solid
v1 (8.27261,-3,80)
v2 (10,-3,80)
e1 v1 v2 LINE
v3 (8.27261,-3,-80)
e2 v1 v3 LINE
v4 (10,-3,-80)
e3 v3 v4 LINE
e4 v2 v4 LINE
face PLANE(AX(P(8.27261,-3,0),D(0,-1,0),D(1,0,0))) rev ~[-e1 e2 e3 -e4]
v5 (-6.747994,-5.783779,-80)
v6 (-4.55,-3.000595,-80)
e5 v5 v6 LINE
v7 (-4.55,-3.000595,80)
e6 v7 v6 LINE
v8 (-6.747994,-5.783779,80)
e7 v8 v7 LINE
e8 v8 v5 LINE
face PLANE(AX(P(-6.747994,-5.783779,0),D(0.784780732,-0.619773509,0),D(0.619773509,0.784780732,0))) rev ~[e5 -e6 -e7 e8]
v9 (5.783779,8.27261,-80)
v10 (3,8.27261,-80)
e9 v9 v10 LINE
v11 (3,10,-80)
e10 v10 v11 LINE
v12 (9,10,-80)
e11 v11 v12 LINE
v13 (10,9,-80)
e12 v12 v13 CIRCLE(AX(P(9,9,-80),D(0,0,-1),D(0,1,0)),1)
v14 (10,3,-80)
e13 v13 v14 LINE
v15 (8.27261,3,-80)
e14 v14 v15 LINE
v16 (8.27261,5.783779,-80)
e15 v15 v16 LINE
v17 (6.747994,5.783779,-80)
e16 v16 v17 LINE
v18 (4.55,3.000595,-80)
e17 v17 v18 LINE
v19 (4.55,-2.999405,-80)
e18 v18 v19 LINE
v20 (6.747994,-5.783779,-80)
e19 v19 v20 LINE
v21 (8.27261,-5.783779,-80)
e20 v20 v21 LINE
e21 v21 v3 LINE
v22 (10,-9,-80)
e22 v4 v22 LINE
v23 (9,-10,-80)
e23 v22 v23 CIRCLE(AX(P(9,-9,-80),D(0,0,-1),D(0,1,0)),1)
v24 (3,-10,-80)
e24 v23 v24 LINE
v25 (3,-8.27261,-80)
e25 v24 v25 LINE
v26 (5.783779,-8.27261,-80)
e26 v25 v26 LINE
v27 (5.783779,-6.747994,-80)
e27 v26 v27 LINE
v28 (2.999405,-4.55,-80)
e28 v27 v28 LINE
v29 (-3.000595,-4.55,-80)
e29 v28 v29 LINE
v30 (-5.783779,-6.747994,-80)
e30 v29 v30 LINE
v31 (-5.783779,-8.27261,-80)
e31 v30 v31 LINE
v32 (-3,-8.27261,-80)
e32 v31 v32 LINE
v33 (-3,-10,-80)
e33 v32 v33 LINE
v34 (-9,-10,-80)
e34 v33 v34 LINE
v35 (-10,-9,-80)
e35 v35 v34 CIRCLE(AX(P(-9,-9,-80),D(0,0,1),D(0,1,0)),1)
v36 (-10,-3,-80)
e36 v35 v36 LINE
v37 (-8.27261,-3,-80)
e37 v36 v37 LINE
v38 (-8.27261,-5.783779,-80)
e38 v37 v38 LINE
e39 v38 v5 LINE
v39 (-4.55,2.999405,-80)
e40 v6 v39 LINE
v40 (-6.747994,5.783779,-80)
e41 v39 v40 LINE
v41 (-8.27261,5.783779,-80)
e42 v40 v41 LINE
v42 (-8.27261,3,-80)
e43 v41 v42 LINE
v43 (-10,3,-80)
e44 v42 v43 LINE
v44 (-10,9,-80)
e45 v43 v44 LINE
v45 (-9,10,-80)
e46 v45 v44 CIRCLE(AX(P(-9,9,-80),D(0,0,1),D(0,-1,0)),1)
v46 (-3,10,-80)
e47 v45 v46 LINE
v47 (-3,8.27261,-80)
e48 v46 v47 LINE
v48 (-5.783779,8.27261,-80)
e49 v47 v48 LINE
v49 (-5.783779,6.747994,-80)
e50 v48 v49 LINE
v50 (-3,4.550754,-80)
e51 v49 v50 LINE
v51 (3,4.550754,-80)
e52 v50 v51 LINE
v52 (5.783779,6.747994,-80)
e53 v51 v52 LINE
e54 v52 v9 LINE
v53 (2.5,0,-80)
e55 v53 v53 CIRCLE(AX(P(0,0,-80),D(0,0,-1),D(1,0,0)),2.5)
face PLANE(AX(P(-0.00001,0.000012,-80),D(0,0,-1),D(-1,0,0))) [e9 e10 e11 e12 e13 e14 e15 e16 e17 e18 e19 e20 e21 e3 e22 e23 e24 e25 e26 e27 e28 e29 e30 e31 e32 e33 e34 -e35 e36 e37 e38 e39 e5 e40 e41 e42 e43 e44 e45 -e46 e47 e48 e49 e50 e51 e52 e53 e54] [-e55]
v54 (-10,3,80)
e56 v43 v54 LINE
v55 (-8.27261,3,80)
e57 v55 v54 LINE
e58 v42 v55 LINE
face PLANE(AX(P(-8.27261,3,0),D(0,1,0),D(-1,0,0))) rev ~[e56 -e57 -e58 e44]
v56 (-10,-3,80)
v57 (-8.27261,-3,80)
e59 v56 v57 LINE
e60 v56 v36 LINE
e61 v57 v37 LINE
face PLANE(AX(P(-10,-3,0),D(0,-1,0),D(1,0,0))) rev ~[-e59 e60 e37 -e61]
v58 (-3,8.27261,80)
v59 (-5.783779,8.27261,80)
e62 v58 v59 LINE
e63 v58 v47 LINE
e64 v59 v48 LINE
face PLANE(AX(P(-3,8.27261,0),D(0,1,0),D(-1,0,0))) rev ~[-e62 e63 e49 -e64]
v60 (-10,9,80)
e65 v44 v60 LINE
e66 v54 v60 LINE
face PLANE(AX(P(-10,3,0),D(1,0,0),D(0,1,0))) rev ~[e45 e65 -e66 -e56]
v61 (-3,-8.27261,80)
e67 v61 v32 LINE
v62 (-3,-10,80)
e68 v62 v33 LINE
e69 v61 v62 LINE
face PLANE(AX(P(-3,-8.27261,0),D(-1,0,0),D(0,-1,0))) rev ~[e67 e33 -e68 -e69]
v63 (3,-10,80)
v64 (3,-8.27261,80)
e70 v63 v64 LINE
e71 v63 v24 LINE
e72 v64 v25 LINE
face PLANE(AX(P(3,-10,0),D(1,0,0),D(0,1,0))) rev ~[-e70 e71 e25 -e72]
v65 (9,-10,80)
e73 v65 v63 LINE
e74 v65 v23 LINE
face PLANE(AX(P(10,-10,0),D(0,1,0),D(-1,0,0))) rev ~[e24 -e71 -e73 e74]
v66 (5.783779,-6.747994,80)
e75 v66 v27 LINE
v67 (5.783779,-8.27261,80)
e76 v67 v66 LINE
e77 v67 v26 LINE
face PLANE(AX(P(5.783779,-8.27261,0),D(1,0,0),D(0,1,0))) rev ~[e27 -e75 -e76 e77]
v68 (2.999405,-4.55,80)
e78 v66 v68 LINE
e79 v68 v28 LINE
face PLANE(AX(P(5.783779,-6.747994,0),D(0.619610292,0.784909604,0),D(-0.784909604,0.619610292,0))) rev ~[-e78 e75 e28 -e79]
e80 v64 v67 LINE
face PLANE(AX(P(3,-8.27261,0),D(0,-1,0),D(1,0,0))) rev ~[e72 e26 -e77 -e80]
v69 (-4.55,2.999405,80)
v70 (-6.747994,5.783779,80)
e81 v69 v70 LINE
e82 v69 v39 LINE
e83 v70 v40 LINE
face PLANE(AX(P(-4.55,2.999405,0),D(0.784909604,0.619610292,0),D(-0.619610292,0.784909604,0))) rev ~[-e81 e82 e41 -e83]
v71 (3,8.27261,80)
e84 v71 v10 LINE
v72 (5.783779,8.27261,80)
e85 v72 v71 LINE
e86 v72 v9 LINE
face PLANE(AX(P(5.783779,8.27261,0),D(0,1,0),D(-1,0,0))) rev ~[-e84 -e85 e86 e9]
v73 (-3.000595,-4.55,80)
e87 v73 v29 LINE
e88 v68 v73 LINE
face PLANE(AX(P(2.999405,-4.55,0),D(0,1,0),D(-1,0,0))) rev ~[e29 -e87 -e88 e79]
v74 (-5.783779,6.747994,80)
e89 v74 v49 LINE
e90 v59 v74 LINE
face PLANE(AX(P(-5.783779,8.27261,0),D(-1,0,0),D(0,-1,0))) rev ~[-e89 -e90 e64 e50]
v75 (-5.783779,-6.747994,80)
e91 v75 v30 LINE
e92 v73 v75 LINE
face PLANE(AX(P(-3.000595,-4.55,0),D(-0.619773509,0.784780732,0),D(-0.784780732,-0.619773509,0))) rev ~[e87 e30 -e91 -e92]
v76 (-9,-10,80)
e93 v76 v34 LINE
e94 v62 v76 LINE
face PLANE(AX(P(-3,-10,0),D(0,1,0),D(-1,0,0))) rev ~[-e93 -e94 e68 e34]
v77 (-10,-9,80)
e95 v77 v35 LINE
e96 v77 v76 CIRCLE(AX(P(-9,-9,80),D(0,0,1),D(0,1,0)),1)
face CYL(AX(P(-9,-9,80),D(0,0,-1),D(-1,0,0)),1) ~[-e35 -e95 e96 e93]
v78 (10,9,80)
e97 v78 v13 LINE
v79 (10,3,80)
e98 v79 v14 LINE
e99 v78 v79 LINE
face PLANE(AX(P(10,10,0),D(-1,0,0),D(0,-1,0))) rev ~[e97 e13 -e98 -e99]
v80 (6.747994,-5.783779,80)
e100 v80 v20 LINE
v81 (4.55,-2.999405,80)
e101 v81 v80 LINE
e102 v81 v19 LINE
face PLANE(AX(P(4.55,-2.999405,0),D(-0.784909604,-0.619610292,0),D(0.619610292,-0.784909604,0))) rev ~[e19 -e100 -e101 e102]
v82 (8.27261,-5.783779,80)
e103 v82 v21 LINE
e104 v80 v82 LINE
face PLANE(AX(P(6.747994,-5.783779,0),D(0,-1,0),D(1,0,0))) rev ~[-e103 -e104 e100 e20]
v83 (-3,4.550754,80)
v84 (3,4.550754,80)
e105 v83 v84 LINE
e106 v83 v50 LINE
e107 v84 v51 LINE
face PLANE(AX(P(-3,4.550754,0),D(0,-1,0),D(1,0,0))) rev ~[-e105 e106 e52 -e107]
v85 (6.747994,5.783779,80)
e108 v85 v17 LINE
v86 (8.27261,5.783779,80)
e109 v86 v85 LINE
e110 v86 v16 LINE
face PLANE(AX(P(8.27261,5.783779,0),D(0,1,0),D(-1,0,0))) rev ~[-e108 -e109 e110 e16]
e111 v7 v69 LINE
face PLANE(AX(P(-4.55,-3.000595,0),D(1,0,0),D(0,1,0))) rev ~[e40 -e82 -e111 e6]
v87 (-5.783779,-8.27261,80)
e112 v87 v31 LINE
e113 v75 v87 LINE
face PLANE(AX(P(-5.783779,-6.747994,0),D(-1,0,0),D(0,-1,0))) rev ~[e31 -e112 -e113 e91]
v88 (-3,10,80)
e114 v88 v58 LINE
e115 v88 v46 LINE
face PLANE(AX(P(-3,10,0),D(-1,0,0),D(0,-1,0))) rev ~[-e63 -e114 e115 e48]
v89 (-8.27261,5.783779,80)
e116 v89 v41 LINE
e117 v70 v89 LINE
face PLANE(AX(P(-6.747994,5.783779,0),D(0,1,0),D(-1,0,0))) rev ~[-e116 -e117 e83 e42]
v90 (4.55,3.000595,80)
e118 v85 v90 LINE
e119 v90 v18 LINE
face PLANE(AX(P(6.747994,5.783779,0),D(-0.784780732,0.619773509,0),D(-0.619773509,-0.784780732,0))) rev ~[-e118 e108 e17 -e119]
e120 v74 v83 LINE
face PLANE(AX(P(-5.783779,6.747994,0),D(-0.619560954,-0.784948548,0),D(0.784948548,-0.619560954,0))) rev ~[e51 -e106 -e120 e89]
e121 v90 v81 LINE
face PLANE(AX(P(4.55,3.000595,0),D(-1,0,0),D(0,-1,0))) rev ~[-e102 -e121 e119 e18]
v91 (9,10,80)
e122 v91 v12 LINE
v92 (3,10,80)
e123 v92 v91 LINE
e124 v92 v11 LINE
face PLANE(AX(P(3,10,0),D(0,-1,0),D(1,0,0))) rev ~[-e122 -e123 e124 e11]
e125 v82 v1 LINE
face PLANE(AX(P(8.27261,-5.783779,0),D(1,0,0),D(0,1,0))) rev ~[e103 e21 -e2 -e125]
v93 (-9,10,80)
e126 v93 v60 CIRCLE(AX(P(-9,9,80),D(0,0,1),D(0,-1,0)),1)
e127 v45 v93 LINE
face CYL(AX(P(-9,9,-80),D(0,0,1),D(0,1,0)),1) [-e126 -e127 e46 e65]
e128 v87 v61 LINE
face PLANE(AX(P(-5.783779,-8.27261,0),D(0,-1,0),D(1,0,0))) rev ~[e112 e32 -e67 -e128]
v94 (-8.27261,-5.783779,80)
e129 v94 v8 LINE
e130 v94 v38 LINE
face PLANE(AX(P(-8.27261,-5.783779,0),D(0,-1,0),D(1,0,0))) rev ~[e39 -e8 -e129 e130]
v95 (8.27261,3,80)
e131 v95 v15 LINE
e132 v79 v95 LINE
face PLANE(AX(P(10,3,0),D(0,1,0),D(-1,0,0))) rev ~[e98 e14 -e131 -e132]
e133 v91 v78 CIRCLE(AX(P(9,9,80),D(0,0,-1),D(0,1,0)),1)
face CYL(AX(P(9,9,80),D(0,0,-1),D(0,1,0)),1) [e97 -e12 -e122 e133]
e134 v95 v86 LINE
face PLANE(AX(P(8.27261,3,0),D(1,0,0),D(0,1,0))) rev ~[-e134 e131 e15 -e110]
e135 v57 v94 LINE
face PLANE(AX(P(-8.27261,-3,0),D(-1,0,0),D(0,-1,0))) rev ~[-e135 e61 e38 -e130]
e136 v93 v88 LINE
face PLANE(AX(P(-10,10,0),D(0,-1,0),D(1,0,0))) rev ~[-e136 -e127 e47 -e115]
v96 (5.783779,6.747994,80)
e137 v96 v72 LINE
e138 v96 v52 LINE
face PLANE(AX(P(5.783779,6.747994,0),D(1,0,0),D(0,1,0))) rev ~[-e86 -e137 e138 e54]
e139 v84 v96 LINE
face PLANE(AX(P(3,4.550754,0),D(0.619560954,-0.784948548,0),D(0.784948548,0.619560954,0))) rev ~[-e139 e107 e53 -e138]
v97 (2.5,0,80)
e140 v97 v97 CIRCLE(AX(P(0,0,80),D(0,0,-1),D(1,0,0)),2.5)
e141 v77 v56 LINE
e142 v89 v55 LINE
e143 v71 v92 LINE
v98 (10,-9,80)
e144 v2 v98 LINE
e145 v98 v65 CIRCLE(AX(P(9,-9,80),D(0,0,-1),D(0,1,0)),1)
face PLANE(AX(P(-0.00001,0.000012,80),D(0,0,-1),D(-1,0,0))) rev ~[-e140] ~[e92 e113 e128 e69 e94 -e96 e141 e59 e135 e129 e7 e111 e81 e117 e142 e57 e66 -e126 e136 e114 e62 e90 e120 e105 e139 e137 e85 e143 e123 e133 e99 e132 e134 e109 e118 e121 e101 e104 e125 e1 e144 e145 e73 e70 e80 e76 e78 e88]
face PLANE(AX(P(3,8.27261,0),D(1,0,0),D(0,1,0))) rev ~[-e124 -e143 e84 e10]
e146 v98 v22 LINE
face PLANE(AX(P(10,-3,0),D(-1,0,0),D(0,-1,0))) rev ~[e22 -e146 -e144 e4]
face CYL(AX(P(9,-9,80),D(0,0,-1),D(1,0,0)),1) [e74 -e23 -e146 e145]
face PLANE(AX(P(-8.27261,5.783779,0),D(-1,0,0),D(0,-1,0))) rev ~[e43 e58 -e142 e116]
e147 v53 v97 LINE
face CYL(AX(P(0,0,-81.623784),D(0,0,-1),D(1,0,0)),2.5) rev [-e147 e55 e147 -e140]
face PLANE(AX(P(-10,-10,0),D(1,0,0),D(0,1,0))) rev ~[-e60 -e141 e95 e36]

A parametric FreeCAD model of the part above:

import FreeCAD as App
import Part
import Sketcher

V = App.Vector
Q = App.Units.Quantity


def edges_at(feature, points):
    """Names of the edges that pass closest to the given points."""
    edges = feature.Shape.Edges
    near = lambda p: min(range(len(edges)), key=lambda i: edges[i].distToShape(Part.Vertex(*p))[0])
    return sorted({f"Edge{near(p) + 1}" for p in points})


def add_polygon(sketch, points):
    """Adds a closed chain of lines whose ends are joined by coincident constraints."""
    first, n = sketch.GeometryCount, len(points)
    for a, b in zip(points, points[1:] + points[:1]):
        sketch.addGeometry(Part.LineSegment(App.Vector(*a, 0), App.Vector(*b, 0)), False)
    for i in range(n):
        sketch.addConstraint(Sketcher.Constraint("Coincident", first + i, 2, first + (i + 1) % n, 1))

doc = App.newDocument("Part")
body = doc.addObject("PartDesign::Body", "Body")

# Sketch on XY plane
sketch1 = doc.addObject("Sketcher::SketchObject", "Sketch")
body.addObject(sketch1)
sketch1.AttachmentSupport = (doc.XY_Plane, [""])
sketch1.MapMode = "FlatFace"
add_polygon(sketch1, [(-3, 10), (-10, 10), (-10, 3), (-8.27261, 3), (-8.27261, 5.783779), (-6.747994, 5.783779), (-4.55, 2.999405), (-4.55, -3.000595), (-6.747994, -5.783779), (-8.27261, -5.783779), (-8.27261, -3), (-10, -3), (-10, -10), (-3, -10), (-3, -8.27261), (-5.783779, -8.27261), (-5.783779, -6.747994), (-3.000595, -4.55), (2.999405, -4.55), (5.783779, -6.747994), (5.783779, -8.27261), (3, -8.27261), (3, -10), (10, -10), (10, -3), (8.27261, -3), (8.27261, -5.783779), (6.747994, -5.783779), (4.55, -2.999405), (4.55, 3.000595), (6.747994, 5.783779), (8.27261, 5.783779), (8.27261, 3), (10, 3), (10, 10), (3, 10), (3, 8.27261), (5.783779, 8.27261), (5.783779, 6.747994), (3, 4.550754), (-3, 4.550754), (-5.783779, 6.747994), (-5.783779, 8.27261), (-3, 8.27261)])  # lines 0-43
sketch1.addConstraint([
    Sketcher.Constraint("Horizontal", 0),
    Sketcher.Constraint("Vertical", 1),
    Sketcher.Constraint("Horizontal", 2),
    Sketcher.Constraint("Vertical", 3),
    Sketcher.Constraint("Horizontal", 4),
    Sketcher.Constraint("Vertical", 6),
    Sketcher.Constraint("Horizontal", 8),
    Sketcher.Constraint("Vertical", 9),
    Sketcher.Constraint("Horizontal", 10),
    Sketcher.Constraint("Vertical", 11),
    Sketcher.Constraint("Horizontal", 12),
    Sketcher.Constraint("Vertical", 13),
    Sketcher.Constraint("Horizontal", 14),
    Sketcher.Constraint("Vertical", 15),
    Sketcher.Constraint("Horizontal", 17),
    Sketcher.Constraint("Vertical", 19),
    Sketcher.Constraint("Horizontal", 20),
    Sketcher.Constraint("Vertical", 21),
    Sketcher.Constraint("Horizontal", 22),
    Sketcher.Constraint("Vertical", 23),
    Sketcher.Constraint("Horizontal", 24),
    Sketcher.Constraint("Vertical", 25),
    Sketcher.Constraint("Horizontal", 26),
    Sketcher.Constraint("Vertical", 28),
    Sketcher.Constraint("Horizontal", 30),
    Sketcher.Constraint("Vertical", 31),
    Sketcher.Constraint("Horizontal", 32),
    Sketcher.Constraint("Vertical", 33),
    Sketcher.Constraint("Horizontal", 34),
    Sketcher.Constraint("Vertical", 35),
    Sketcher.Constraint("Horizontal", 36),
    Sketcher.Constraint("Vertical", 37),
    Sketcher.Constraint("Horizontal", 39),
    Sketcher.Constraint("Vertical", 41),
    Sketcher.Constraint("Horizontal", 42),
    Sketcher.Constraint("Vertical", 43),
    Sketcher.Constraint("Symmetric", 0, 2, 22, 2, -1, 1),
    Sketcher.Constraint("Symmetric", 2, 2, 24, 2, -1, 1),
    Sketcher.Constraint("Symmetric", 4, 2, 26, 2, -1, 1),
    Sketcher.Constraint("Symmetric", 5, 2, 27, 2, -1, 1),
    Sketcher.Constraint("Symmetric", 7, 2, 29, 2, -1, 1),
    Sketcher.Constraint("Symmetric", 9, 2, 31, 2, -1, 1),
    Sketcher.Constraint("Symmetric", 11, 2, 33, 2, -1, 1),
    Sketcher.Constraint("Symmetric", 13, 2, 35, 2, -1, 1),
    Sketcher.Constraint("Symmetric", 15, 2, 37, 2, -1, 1),
    Sketcher.Constraint("Symmetric", 18, 2, 40, 2, -1, 1),
    Sketcher.Constraint("Symmetric", 20, 2, 42, 2, -1, 1),
    Sketcher.Constraint("Symmetric", 15, 2, 18, 2, -2),
    Sketcher.Constraint("Symmetric", 13, 2, 20, 2, -2),
    Sketcher.Constraint("Symmetric", 11, 2, 22, 2, -2),
    Sketcher.Constraint("Symmetric", 9, 2, 24, 2, -2),
    Sketcher.Constraint("Symmetric", 7, 2, 26, 2, -2),
    Sketcher.Constraint("Parallel", 7, 29),
    Sketcher.Constraint("Vertical", 35, 2, 38, 2),
    Sketcher.Constraint("Vertical", 13, 2, 39, 2),
    Sketcher.Constraint("Equal", 17, 39),
    Sketcher.Constraint("Equal", 34, 1),
    Sketcher.Constraint("Equal", 42, 3),
    Sketcher.Constraint("Equal", 39, 6),
    Sketcher.Constraint("Equal", 32, 13),
    Sketcher.Constraint("Equal", 30, 15),
    Sketcher.Constraint("Equal", 7, 16),
    Sketcher.Constraint("Equal", 5, 18),
    Sketcher.Constraint("Equal", 29, 38),
    Sketcher.Constraint("DistanceX", 0, 2, 0, 1, Q("7 mm")),
    Sketcher.Constraint("DistanceX", 17, 1, 17, 2, Q("6 mm")),
    Sketcher.Constraint("DistanceY", -1, 1, 0, 2, Q("10 mm")),
    Sketcher.Constraint("DistanceX", 5, 2, -1, 1, Q("4.55 mm")),
    Sketcher.Constraint("DistanceX", 2, 1, 2, 2, Q("1.72739 mm")),
    Sketcher.Constraint("DistanceX", 14, 2, 14, 1, Q("2.783779 mm")),
    Sketcher.Constraint("DistanceY", 15, 2, 6, 2, Q("3.747399 mm")),
    Sketcher.Constraint("Distance", 5, Q("3.547382 mm")),
])
pad1 = doc.addObject("PartDesign::Pad", "Pad")
body.addObject(pad1)
pad1.Profile = sketch1
pad1.Length = 160
pad1.Midplane = True

# Sketch on XY plane
sketch2 = doc.addObject("Sketcher::SketchObject", "Sketch001")
body.addObject(sketch2)
sketch2.AttachmentSupport = (doc.XY_Plane, [""])
sketch2.MapMode = "FlatFace"
sketch2.AttachmentOffset = App.Placement(V(0, 0, 80), App.Rotation())
sketch2.addGeometry(Part.Circle(V(0, 0, 0), V(0, 0, 1), 2.5), False)
sketch2.addConstraint([
    Sketcher.Constraint("Coincident", 0, 3, -1, 1),
    Sketcher.Constraint("Diameter", 0, Q("5 mm")),
])
pocket1 = doc.addObject("PartDesign::Pocket", "Pocket")
body.addObject(pocket1)
pocket1.Profile = sketch2
pocket1.Type = "ThroughAll"
pocket1.Midplane = True
doc.recompute()

fillet = doc.addObject("PartDesign::Fillet", "Fillet")
body.addObject(fillet)
fillet.Base = (pocket1, edges_at(pocket1, [
    (-10, 10, 0),
    (10, 10, 0),
    (10, -10, 0),
    (-10, -10, 0),
]))
fillet.Radius = 1

doc.recompute()
